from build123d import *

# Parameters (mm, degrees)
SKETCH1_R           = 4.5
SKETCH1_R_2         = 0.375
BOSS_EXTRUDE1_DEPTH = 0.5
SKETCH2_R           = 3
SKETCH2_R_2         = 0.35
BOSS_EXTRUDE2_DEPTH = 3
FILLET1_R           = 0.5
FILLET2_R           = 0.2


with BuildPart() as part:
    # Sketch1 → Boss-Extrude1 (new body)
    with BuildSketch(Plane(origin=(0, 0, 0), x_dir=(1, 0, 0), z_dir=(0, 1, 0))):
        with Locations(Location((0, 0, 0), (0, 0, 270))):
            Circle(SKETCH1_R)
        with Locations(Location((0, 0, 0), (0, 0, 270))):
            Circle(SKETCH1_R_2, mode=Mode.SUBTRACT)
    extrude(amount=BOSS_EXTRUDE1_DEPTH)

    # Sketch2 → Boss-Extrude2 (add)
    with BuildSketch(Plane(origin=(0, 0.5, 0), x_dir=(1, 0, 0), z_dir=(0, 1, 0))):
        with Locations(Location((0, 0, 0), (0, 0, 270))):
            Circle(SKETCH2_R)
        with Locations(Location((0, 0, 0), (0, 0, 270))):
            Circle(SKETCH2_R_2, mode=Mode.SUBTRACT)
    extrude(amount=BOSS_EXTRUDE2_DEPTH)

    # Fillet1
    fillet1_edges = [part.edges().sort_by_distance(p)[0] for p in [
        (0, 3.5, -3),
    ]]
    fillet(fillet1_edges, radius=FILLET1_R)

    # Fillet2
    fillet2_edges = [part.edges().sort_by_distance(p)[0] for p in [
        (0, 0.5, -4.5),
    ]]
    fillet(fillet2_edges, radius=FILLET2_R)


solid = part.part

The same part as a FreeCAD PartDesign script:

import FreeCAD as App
import Part
import Sketcher
from FreeCAD import Vector


def edges_at(feature, points):
    """Names of the edges that pass closest to the given points."""
    edges = feature.Shape.Edges
    near = lambda p: min(range(len(edges)), key=lambda i: edges[i].distToShape(Part.Vertex(*p))[0])
    return sorted({f"Edge{near(p) + 1}" for p in points})

doc = App.newDocument("Part")
body = doc.addObject("PartDesign::Body", "Body")

# Sketch on XZ plane
sketch1 = body.newObject("Sketcher::SketchObject", "Sketch")
sketch1.AttachmentSupport = (doc.getObject("XZ_Plane"), [""])
sketch1.MapMode = "FlatFace"
sketch1.addGeometry(Part.Circle(Vector(0, 0, 0), Vector(0, 0, 1), 4.5), False)
sketch1.addGeometry(Part.Circle(Vector(0, 0, 0), Vector(0, 0, 1), 0.38), False)
sketch1.addConstraint(Sketcher.Constraint("Coincident", 0, 3, -1, 1))
sketch1.addConstraint(Sketcher.Constraint("Coincident", 1, 3, -1, 1))
sketch1.addConstraint(Sketcher.Constraint("Diameter", 0, 9.0))
sketch1.addConstraint(Sketcher.Constraint("Diameter", 1, 0.75))
pad1 = body.newObject("PartDesign::Pad", "Pad")
pad1.Profile = sketch1
pad1.Length = 0.5
pad1.Reversed = True

# Sketch on XZ plane
sketch2 = body.newObject("Sketcher::SketchObject", "Sketch001")
sketch2.AttachmentSupport = (doc.getObject("XZ_Plane"), [""])
sketch2.MapMode = "FlatFace"
sketch2.AttachmentOffset = App.Placement(Vector(0, 0, -0.5), App.Rotation())
sketch2.addGeometry(Part.Circle(Vector(0, 0, 0), Vector(0, 0, 1), 3), False)
sketch2.addGeometry(Part.Circle(Vector(0, 0, 0), Vector(0, 0, 1), 0.35), False)
sketch2.addConstraint(Sketcher.Constraint("Coincident", 0, 3, -1, 1))
sketch2.addConstraint(Sketcher.Constraint("Coincident", 1, 3, -1, 1))
sketch2.addConstraint(Sketcher.Constraint("Diameter", 0, 6.0))
sketch2.addConstraint(Sketcher.Constraint("Diameter", 1, 0.7))
pad2 = body.newObject("PartDesign::Pad", "Pad001")
pad2.Profile = sketch2
pad2.Length = 3
pad2.Reversed = True
doc.recompute()

fillet = body.newObject("PartDesign::Fillet", "Fillet")
fillet.Base = (pad2, edges_at(pad2, [(0, 3.5, -3)]))
fillet.Radius = 0.5
doc.recompute()

fillet2 = body.newObject("PartDesign::Fillet", "Fillet001")
fillet2.Base = (fillet, edges_at(fillet, [(0, 0.5, -4.5)]))
fillet2.Radius = 0.2

doc.recompute()
